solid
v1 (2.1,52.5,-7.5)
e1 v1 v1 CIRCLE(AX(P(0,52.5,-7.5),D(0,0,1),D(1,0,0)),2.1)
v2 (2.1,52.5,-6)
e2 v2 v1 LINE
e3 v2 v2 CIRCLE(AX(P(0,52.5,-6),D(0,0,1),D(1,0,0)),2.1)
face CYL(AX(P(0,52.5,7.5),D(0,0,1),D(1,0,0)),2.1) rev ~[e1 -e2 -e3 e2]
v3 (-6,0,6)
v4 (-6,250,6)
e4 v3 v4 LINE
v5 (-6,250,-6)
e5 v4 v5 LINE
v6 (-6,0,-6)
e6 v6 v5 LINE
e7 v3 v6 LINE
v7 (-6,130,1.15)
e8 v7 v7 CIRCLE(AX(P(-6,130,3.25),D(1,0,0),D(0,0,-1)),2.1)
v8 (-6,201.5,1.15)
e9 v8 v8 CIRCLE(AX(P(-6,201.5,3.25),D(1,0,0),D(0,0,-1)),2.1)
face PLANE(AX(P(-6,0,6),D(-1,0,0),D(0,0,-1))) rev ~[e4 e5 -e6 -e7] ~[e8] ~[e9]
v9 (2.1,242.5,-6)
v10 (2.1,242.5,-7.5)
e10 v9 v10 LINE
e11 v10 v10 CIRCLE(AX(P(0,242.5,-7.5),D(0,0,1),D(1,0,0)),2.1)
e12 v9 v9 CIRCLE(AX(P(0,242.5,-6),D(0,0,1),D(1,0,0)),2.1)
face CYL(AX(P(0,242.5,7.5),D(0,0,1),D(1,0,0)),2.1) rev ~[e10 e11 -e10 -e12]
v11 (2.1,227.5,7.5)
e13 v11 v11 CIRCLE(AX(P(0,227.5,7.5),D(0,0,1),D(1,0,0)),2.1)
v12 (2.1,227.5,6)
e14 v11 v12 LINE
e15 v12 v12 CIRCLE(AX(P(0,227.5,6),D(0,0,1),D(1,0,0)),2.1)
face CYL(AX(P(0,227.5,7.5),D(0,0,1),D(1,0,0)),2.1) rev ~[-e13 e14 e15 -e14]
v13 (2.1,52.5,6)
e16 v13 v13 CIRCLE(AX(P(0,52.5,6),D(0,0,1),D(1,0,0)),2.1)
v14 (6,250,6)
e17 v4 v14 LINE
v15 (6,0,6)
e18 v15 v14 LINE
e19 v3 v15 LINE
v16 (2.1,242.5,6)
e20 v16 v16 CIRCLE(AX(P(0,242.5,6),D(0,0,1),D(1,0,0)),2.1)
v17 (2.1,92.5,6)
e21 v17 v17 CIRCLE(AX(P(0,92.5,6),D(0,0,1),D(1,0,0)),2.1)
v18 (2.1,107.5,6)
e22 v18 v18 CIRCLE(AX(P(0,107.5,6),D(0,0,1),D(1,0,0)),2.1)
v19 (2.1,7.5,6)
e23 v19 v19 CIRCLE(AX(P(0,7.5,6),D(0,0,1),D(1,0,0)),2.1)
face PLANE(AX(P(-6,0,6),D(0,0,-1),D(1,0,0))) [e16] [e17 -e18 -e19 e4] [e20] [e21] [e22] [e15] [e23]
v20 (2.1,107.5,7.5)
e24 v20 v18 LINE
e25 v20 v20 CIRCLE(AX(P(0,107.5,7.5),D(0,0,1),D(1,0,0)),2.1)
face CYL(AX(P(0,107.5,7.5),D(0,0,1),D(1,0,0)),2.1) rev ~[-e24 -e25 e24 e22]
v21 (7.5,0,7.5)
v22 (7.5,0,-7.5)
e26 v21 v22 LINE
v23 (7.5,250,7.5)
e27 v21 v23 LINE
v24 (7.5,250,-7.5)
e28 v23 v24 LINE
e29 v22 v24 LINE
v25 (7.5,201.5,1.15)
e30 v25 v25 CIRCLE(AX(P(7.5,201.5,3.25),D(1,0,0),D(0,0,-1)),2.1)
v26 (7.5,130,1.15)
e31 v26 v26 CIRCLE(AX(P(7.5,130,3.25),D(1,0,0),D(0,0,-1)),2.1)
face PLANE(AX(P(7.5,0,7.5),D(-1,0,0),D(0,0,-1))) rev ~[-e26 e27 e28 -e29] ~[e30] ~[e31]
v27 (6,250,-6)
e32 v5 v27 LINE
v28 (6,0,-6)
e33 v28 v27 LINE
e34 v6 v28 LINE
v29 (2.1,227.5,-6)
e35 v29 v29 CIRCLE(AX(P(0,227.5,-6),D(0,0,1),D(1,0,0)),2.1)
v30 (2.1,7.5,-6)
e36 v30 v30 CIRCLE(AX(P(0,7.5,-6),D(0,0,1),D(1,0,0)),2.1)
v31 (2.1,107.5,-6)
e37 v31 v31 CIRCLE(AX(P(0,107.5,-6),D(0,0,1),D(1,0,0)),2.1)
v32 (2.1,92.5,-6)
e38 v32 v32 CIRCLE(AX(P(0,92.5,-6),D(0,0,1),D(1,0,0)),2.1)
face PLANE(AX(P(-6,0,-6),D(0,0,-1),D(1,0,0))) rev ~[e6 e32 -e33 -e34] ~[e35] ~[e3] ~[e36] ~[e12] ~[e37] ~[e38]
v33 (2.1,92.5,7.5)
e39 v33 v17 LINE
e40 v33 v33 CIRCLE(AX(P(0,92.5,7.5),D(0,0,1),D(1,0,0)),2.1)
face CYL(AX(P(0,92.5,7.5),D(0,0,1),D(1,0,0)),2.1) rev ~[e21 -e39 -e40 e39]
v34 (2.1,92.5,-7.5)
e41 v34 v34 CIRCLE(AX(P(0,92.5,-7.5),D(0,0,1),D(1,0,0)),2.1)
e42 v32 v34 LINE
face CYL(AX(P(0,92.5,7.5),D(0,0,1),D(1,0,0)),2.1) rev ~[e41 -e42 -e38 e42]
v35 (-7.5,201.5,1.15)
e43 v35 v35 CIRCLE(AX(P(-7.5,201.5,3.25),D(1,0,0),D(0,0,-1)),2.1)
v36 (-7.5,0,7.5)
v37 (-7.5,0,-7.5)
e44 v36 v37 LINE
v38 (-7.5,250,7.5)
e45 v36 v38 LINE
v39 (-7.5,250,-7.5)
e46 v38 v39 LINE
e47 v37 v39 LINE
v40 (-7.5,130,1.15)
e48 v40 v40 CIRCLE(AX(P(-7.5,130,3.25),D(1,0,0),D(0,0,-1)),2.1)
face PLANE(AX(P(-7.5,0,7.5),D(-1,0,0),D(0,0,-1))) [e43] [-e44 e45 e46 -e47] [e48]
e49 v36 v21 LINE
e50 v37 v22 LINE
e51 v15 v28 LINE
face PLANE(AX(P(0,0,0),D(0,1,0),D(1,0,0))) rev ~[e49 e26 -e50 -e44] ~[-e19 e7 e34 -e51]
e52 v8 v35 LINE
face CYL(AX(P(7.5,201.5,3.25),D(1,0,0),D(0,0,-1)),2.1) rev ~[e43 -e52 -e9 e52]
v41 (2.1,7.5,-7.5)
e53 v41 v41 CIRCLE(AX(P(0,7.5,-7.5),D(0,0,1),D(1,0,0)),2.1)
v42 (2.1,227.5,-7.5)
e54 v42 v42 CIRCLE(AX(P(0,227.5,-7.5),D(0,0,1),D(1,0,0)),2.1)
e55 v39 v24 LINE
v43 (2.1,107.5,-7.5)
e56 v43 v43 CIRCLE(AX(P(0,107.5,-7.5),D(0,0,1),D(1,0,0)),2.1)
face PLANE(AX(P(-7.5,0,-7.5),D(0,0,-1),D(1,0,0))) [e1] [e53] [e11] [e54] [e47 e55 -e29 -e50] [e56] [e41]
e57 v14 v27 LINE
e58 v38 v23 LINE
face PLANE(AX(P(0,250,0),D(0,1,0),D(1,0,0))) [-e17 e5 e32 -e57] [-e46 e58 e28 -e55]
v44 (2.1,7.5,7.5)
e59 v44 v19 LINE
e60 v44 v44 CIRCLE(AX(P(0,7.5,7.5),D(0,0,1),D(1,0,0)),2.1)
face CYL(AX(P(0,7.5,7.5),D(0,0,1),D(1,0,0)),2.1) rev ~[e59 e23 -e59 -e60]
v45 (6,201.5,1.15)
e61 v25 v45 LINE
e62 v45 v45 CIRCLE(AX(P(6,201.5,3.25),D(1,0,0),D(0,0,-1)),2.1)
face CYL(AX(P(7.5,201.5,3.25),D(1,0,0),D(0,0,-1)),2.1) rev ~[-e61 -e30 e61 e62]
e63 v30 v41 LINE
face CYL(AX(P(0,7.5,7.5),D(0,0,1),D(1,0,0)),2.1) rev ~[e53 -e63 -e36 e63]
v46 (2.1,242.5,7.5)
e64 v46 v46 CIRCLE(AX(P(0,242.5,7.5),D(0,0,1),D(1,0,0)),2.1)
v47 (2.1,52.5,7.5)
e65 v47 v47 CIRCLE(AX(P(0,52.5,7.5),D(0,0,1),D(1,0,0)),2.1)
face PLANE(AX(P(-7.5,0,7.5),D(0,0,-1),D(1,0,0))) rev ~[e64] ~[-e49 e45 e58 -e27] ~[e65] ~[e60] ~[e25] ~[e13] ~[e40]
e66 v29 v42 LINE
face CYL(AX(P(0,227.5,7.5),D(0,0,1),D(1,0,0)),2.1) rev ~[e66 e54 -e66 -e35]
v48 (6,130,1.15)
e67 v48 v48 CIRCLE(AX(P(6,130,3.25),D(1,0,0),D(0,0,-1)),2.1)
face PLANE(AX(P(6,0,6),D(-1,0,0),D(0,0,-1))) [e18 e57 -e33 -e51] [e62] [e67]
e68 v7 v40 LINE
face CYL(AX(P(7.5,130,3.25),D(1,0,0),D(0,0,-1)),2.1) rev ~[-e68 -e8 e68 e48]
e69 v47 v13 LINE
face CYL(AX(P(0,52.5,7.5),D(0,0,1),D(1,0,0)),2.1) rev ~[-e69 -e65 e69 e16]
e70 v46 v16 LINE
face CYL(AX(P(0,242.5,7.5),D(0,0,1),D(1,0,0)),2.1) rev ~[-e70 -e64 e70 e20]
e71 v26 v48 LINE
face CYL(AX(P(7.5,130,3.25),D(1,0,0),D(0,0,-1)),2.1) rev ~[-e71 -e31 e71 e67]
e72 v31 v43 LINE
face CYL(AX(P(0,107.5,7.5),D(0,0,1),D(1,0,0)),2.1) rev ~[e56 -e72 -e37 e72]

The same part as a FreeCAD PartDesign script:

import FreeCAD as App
import Part
import Sketcher
Q = App.Units.Quantity


def add_polygon(sketch, points):
    """Adds a closed chain of lines whose ends are joined by coincident constraints."""
    first, n = sketch.GeometryCount, len(points)
    for a, b in zip(points, points[1:] + points[:1]):
        sketch.addGeometry(Part.LineSegment(App.Vector(*a, 0), App.Vector(*b, 0)), False)
    for i in range(n):
        sketch.addConstraint(Sketcher.Constraint("Coincident", first + i, 2, first + (i + 1) % n, 1))

doc = App.newDocument("Part")
body = doc.addObject("PartDesign::Body", "Body")

sketch1 = body.newObject("Sketcher::SketchObject", "Sketch")
sketch1.AttachmentSupport = (doc.getObject("XZ_Plane"), [""])
sketch1.MapMode = "FlatFace"
add_polygon(sketch1, [(-8, -8), (-8, 8), (8, 8), (8, -8)])
add_polygon(sketch1, [(6, 6), (-6, 6), (-6, -6), (6, -6)])
sketch1.addConstraint(Sketcher.Constraint("Vertical", 0))
sketch1.addConstraint(Sketcher.Constraint("Horizontal", 1))
sketch1.addConstraint(Sketcher.Constraint("Vertical", 2))
sketch1.addConstraint(Sketcher.Constraint("Horizontal", 3))
sketch1.addConstraint(Sketcher.Constraint("Horizontal", 4))
sketch1.addConstraint(Sketcher.Constraint("Vertical", 5))
sketch1.addConstraint(Sketcher.Constraint("Horizontal", 6))
sketch1.addConstraint(Sketcher.Constraint("Vertical", 7))
sketch1.addConstraint(Sketcher.Constraint("Symmetric", 0, 2, 2, 2, -1, 1))
sketch1.addConstraint(Sketcher.Constraint("Symmetric", 4, 2, 6, 2, -1, 1))
sketch1.addConstraint(Sketcher.Constraint("Equal", 3, 0))
sketch1.addConstraint(Sketcher.Constraint("Equal", 6, 5))
sketch1.addConstraint(Sketcher.Constraint("DistanceX", 1, 1, 1, 2, Q("15 mm")))
sketch1.addConstraint(Sketcher.Constraint("DistanceX", 4, 2, 4, 1, Q("12 mm")))
pad1 = body.newObject("PartDesign::Pad", "Pad")
pad1.Profile = sketch1
pad1.Length = 250
pad1.Reversed = True

sketch2 = body.newObject("Sketcher::SketchObject", "Sketch001")
sketch2.AttachmentSupport = (doc.getObject("XY_Plane"), [""])
sketch2.MapMode = "FlatFace"
sketch2.AttachmentOffset = App.Placement(App.Vector(0, 0, 7.5), App.Rotation())
sketch2.addGeometry(Part.Circle(App.Vector(0, 52.5, 0), App.Vector(0, 0, 1), 2.1), False)
sketch2.addGeometry(Part.Circle(App.Vector(0, 7.5, 0), App.Vector(0, 0, 1), 2.1), False)
sketch2.addConstraint(Sketcher.Constraint("Equal", 0, 1))
sketch2.addConstraint(Sketcher.Constraint("PointOnObject", 0, 3, -2))
sketch2.addConstraint(Sketcher.Constraint("PointOnObject", 1, 3, -2))
sketch2.addConstraint(Sketcher.Constraint("Diameter", 0, Q("4.2 mm")))
sketch2.addConstraint(Sketcher.Constraint("DistanceY", 1, 3, 0, 3, Q("45 mm")))
sketch2.addConstraint(Sketcher.Constraint("DistanceY", -1, 1, 0, 3, Q("52.5 mm")))
pocket1 = body.newObject("PartDesign::Pocket", "Pocket")
pocket1.Profile = sketch2
pocket1.Type = "ThroughAll"

sketch3 = body.newObject("Sketcher::SketchObject", "Sketch002")
sketch3.AttachmentSupport = (doc.getObject("XY_Plane"), [""])
sketch3.MapMode = "FlatFace"
sketch3.AttachmentOffset = App.Placement(App.Vector(0, 0, 7.5), App.Rotation())
sketch3.addGeometry(Part.Circle(App.Vector(0, 107.5, 0), App.Vector(0, 0, 1), 2.1), False)
sketch3.addGeometry(Part.Circle(App.Vector(0, 92.5, 0), App.Vector(0, 0, 1), 2.1), False)
sketch3.addConstraint(Sketcher.Constraint("Equal", 0, 1))
sketch3.addConstraint(Sketcher.Constraint("PointOnObject", 0, 3, -2))
sketch3.addConstraint(Sketcher.Constraint("PointOnObject", 1, 3, -2))
sketch3.addConstraint(Sketcher.Constraint("Diameter", 0, Q("4.2 mm")))
sketch3.addConstraint(Sketcher.Constraint("DistanceY", 1, 3, 0, 3, Q("15 mm")))
sketch3.addConstraint(Sketcher.Constraint("DistanceY", -1, 1, 0, 3, Q("107.5 mm")))
pocket2 = body.newObject("PartDesign::Pocket", "Pocket001")
pocket2.Profile = sketch3
pocket2.Type = "ThroughAll"

sketch4 = body.newObject("Sketcher::SketchObject", "Sketch003")
sketch4.AttachmentSupport = (doc.getObject("YZ_Plane"), [""])
sketch4.MapMode = "FlatFace"
sketch4.AttachmentOffset = App.Placement(App.Vector(0, 0, 7.5), App.Rotation())
sketch4.addGeometry(Part.Circle(App.Vector(130, 3.2, 0), App.Vector(0, 0, 1), 2.1), False)
sketch4.addGeometry(Part.Circle(App.Vector(201.5, 3.2, 0), App.Vector(0, 0, 1), 2.1), False)
sketch4.addConstraint(Sketcher.Constraint("Equal", 0, 1))
sketch4.addConstraint(Sketcher.Constraint("Horizontal", 0, 3, 1, 3))
sketch4.addConstraint(Sketcher.Constraint("Diameter", 0, Q("4.2 mm")))
sketch4.addConstraint(Sketcher.Constraint("DistanceX", -1, 1, 0, 3, Q("130 mm")))
sketch4.addConstraint(Sketcher.Constraint("DistanceX", -1, 1, 1, 3, Q("201.5 mm")))
sketch4.addConstraint(Sketcher.Constraint("DistanceY", -1, 1, 0, 3, Q("3.25 mm")))
pocket3 = body.newObject("PartDesign::Pocket", "Pocket002")
pocket3.Profile = sketch4
pocket3.Type = "ThroughAll"

sketch5 = body.newObject("Sketcher::SketchObject", "Sketch004")
sketch5.AttachmentSupport = (doc.getObject("XY_Plane"), [""])
sketch5.MapMode = "FlatFace"
sketch5.AttachmentOffset = App.Placement(App.Vector(0, 0, 7.5), App.Rotation())
sketch5.addGeometry(Part.Circle(App.Vector(0, 227.5, 0), App.Vector(0, 0, 1), 2.1), False)
sketch5.addGeometry(Part.Circle(App.Vector(0, 242.5, 0), App.Vector(0, 0, 1), 2.1), False)
sketch5.addConstraint(Sketcher.Constraint("Equal", 0, 1))
sketch5.addConstraint(Sketcher.Constraint("PointOnObject", 0, 3, -2))
sketch5.addConstraint(Sketcher.Constraint("PointOnObject", 1, 3, -2))
sketch5.addConstraint(Sketcher.Constraint("Diameter", 0, Q("4.2 mm")))
sketch5.addConstraint(Sketcher.Constraint("DistanceY", 0, 3, 1, 3, Q("15 mm")))
sketch5.addConstraint(Sketcher.Constraint("DistanceY", -1, 1, 0, 3, Q("227.5 mm")))
pocket4 = body.newObject("PartDesign::Pocket", "Pocket003")
pocket4.Profile = sketch5
pocket4.Type = "ThroughAll"

doc.recompute()
